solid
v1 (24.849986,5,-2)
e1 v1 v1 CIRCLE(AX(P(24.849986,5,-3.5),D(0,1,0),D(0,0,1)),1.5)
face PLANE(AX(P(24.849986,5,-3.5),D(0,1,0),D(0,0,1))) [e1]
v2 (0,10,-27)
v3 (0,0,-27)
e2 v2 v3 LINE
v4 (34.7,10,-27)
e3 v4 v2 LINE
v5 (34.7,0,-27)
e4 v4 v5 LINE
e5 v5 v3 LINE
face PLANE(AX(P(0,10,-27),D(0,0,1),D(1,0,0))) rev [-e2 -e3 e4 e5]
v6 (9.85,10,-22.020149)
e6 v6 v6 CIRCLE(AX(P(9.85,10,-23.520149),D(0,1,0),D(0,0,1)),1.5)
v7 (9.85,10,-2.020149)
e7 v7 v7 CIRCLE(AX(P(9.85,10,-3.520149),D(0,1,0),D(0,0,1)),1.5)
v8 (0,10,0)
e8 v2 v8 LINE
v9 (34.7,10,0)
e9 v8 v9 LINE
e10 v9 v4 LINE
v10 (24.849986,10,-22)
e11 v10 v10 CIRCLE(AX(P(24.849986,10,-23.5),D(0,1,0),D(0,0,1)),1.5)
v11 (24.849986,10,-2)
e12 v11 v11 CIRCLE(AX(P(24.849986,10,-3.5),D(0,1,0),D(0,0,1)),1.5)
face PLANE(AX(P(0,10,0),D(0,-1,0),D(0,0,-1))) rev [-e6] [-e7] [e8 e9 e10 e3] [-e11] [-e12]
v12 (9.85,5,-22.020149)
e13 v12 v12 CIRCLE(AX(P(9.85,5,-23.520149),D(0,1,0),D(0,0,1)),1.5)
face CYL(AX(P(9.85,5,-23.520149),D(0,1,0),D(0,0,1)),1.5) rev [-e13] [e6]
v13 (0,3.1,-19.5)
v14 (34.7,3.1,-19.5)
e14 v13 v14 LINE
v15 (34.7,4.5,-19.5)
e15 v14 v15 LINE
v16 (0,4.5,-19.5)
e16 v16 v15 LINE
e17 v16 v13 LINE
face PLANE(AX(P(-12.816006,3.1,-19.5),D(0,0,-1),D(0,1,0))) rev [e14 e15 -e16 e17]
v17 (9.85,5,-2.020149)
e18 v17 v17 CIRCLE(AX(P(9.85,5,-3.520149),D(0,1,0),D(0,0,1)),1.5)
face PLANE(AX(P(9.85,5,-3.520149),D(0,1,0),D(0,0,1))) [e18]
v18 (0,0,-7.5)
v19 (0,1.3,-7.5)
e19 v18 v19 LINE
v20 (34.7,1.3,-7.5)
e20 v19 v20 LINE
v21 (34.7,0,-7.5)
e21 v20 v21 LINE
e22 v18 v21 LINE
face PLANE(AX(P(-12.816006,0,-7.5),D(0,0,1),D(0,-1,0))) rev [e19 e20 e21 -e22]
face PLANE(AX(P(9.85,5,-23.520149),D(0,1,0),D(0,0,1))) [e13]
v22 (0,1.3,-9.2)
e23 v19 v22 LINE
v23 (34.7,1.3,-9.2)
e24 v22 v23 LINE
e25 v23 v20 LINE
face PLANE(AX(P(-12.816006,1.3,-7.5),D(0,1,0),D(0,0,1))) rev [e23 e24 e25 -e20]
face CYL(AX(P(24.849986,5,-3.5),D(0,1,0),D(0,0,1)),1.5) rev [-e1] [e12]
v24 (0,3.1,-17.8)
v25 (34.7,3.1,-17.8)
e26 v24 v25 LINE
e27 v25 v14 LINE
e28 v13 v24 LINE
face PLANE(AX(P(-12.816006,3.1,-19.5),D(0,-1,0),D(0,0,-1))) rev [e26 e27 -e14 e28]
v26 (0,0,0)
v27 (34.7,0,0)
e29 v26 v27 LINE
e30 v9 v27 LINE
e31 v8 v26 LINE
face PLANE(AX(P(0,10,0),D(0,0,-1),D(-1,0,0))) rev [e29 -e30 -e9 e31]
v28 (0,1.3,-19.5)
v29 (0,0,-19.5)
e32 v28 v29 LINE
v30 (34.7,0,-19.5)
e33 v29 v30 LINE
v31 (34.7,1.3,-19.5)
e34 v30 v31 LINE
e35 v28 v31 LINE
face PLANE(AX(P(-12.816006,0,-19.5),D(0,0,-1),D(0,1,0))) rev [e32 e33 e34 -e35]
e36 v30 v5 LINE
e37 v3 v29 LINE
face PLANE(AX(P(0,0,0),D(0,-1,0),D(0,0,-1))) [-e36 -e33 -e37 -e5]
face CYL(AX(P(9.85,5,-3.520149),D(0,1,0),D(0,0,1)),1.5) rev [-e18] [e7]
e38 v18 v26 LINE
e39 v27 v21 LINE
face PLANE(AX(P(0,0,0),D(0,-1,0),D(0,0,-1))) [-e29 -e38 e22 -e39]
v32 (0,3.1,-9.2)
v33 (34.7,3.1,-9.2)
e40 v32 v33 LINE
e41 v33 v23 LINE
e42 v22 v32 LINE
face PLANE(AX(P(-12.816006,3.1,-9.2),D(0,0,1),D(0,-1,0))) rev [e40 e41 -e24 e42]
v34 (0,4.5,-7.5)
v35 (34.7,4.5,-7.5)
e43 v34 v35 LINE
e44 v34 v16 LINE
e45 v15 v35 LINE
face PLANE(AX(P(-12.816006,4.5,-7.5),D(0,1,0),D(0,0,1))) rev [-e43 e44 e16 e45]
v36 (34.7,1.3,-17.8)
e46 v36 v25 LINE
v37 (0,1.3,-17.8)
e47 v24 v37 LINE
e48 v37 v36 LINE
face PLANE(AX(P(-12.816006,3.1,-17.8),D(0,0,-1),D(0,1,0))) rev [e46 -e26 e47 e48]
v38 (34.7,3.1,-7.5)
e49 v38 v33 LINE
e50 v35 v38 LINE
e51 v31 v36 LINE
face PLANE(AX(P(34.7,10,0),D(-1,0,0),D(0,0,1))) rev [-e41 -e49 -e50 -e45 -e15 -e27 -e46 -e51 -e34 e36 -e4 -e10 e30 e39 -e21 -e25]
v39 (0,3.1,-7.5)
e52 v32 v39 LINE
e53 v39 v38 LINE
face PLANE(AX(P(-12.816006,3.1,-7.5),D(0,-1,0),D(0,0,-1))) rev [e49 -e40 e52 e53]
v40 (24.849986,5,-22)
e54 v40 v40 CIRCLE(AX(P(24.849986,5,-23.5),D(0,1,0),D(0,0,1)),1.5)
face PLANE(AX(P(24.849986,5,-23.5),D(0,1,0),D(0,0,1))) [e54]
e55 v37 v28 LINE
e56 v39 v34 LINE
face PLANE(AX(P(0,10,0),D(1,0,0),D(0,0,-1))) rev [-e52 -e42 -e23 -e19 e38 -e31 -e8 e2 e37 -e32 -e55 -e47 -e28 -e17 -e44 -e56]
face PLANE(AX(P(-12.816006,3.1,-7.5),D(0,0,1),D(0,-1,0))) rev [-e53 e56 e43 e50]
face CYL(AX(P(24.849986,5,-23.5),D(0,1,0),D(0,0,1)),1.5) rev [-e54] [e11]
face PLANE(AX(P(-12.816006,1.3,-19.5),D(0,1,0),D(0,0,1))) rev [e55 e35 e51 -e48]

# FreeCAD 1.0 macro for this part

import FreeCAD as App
import Part
import Sketcher
from FreeCAD import Vector
Q = App.Units.Quantity

doc = App.newDocument("Part")
body = doc.addObject("PartDesign::Body", "Body")

# Sketch on XZ plane
sketch1 = body.newObject("Sketcher::SketchObject", "Sketch")
sketch1.AttachmentSupport = (doc.getObject("XZ_Plane"), [""])
sketch1.MapMode = "FlatFace"
sketch1.addGeometry([
    Part.LineSegment(Vector(0, -27, 0), Vector(0, 0, 0)),
    Part.LineSegment(Vector(0, 0, 0), Vector(34.7, 0, 0)),
    Part.LineSegment(Vector(34.7, 0, 0), Vector(34.7, -27, 0)),
    Part.LineSegment(Vector(34.7, -27, 0), Vector(0, -27, 0)),
], False)
sketch1.addConstraint([
    Sketcher.Constraint("Coincident", 0, 2, 1, 1),
    Sketcher.Constraint("Coincident", 1, 2, 2, 1),
    Sketcher.Constraint("Coincident", 2, 2, 3, 1),
    Sketcher.Constraint("Coincident", 3, 2, 0, 1),
    Sketcher.Constraint("Vertical", 0),
    Sketcher.Constraint("Horizontal", 1),
    Sketcher.Constraint("Vertical", 2),
    Sketcher.Constraint("Horizontal", 3),
    Sketcher.Constraint("Coincident", 0, 2, -1, 1),
    Sketcher.Constraint("DistanceY", 0, 1, 0, 2, Q("27 mm")),
    Sketcher.Constraint("DistanceX", 1, 1, 1, 2, Q("34.7 mm")),
])
pad1 = body.newObject("PartDesign::Pad", "Pad")
pad1.Profile = sketch1
pad1.Length = 10
pad1.Reversed = True

# Sketch on XZ plane
sketch2 = body.newObject("Sketcher::SketchObject", "Sketch001")
sketch2.AttachmentSupport = (doc.getObject("XZ_Plane"), [""])
sketch2.MapMode = "FlatFace"
sketch2.AttachmentOffset = App.Placement(Vector(0, 0, -10), App.Rotation())
sketch2.addGeometry([
    Part.Circle(Vector(9.85, -23.520149, 0), Vector(0, 0, 1), 1.5),
    Part.Circle(Vector(24.849986, -23.5, 0), Vector(0, 0, 1), 1.5),
    Part.Circle(Vector(9.85, -3.520149, 0), Vector(0, 0, 1), 1.5),
    Part.Circle(Vector(24.849986, -3.5, 0), Vector(0, 0, 1), 1.5),
], False)
sketch2.addConstraint([
    Sketcher.Constraint("Equal", 0, 1),
    Sketcher.Constraint("Equal", 1, 2),
    Sketcher.Constraint("Equal", 2, 3),
    Sketcher.Constraint("Vertical", 0, 3, 2, 3),
    Sketcher.Constraint("Vertical", 1, 3, 3, 3),
    Sketcher.Constraint("Diameter", 0, Q("3 mm")),
    Sketcher.Constraint("DistanceY", 0, 3, 2, 3, Q("20 mm")),
    Sketcher.Constraint("DistanceY", 1, 3, 3, 3, Q("20 mm")),
    Sketcher.Constraint("DistanceY", 1, 3, -1, 1, Q("23.5 mm")),
    Sketcher.Constraint("DistanceX", -1, 1, 0, 3, Q("9.85 mm")),
    Sketcher.Constraint("DistanceY", 0, 3, -1, 1, Q("23.520149 mm")),
    Sketcher.Constraint("DistanceX", -1, 1, 1, 3, Q("24.849986 mm")),
])
pocket1 = body.newObject("PartDesign::Pocket", "Pocket")
pocket1.Profile = sketch2
pocket1.Length = 5
pocket1.Reversed = True

# Sketch on YZ plane
sketch3 = body.newObject("Sketcher::SketchObject", "Sketch002")
sketch3.AttachmentSupport = (doc.getObject("YZ_Plane"), [""])
sketch3.MapMode = "FlatFace"
sketch3.AttachmentOffset = App.Placement(Vector(0, 0, 34.7), App.Rotation())
sketch3.addGeometry([
    Part.LineSegment(Vector(0, -7.5, 0), Vector(0, -19.5, 0)),  # 0
    Part.LineSegment(Vector(0, -19.5, 0), Vector(1.3, -19.5, 0)),  # 1
    Part.LineSegment(Vector(1.3, -19.5, 0), Vector(1.3, -17.8, 0)),  # 2
    Part.LineSegment(Vector(1.3, -17.8, 0), Vector(3.1, -17.8, 0)),  # 3
    Part.LineSegment(Vector(3.1, -17.8, 0), Vector(3.1, -19.5, 0)),  # 4
    Part.LineSegment(Vector(3.1, -19.5, 0), Vector(4.5, -19.5, 0)),  # 5
    Part.LineSegment(Vector(4.5, -19.5, 0), Vector(4.5, -7.5, 0)),  # 6
    Part.LineSegment(Vector(4.5, -7.5, 0), Vector(3.1, -7.5, 0)),  # 7
    Part.LineSegment(Vector(3.1, -7.5, 0), Vector(3.1, -9.2, 0)),  # 8
    Part.LineSegment(Vector(3.1, -9.2, 0), Vector(1.3, -9.2, 0)),  # 9
    Part.LineSegment(Vector(1.3, -9.2, 0), Vector(1.3, -7.5, 0)),  # 10
    Part.LineSegment(Vector(1.3, -7.5, 0), Vector(0, -7.5, 0)),  # 11
], False)
sketch3.addConstraint([
    Sketcher.Constraint("Coincident", 0, 2, 1, 1),
    Sketcher.Constraint("Coincident", 1, 2, 2, 1),
    Sketcher.Constraint("Coincident", 2, 2, 3, 1),
    Sketcher.Constraint("Coincident", 3, 2, 4, 1),
    Sketcher.Constraint("Coincident", 4, 2, 5, 1),
    Sketcher.Constraint("Coincident", 5, 2, 6, 1),
    Sketcher.Constraint("Coincident", 6, 2, 7, 1),
    Sketcher.Constraint("Coincident", 7, 2, 8, 1),
    Sketcher.Constraint("Coincident", 8, 2, 9, 1),
    Sketcher.Constraint("Coincident", 9, 2, 10, 1),
    Sketcher.Constraint("Coincident", 10, 2, 11, 1),
    Sketcher.Constraint("Coincident", 11, 2, 0, 1),
    Sketcher.Constraint("Vertical", 0),
    Sketcher.Constraint("Horizontal", 1),
    Sketcher.Constraint("Vertical", 2),
    Sketcher.Constraint("Horizontal", 3),
    Sketcher.Constraint("Vertical", 4),
    Sketcher.Constraint("Horizontal", 5),
    Sketcher.Constraint("Vertical", 6),
    Sketcher.Constraint("Horizontal", 7),
    Sketcher.Constraint("Vertical", 8),
    Sketcher.Constraint("Horizontal", 9),
    Sketcher.Constraint("Vertical", 10),
    Sketcher.Constraint("Horizontal", 11),
    Sketcher.Constraint("PointOnObject", 0, 2, -2),
    Sketcher.Constraint("Horizontal", 1, 2, 4, 2),
    Sketcher.Constraint("Horizontal", 7, 2, 10, 2),
    Sketcher.Constraint("Vertical", 4, 2, 7, 2),
    Sketcher.Constraint("Vertical", 2, 2, 9, 2),
    Sketcher.Constraint("Equal", 4, 8),
    Sketcher.Constraint("DistanceY", 0, 2, 0, 1, Q("12 mm")),
    Sketcher.Constraint("DistanceX", 1, 1, 1, 2, Q("1.3 mm")),
    Sketcher.Constraint("DistanceX", 3, 1, 3, 2, Q("1.8 mm")),
    Sketcher.Constraint("DistanceX", 5, 1, 5, 2, Q("1.4 mm")),
    Sketcher.Constraint("DistanceY", 2, 1, 2, 2, Q("1.7 mm")),
    Sketcher.Constraint("DistanceY", 0, 2, -1, 1, Q("19.5 mm")),
])
pocket2 = body.newObject("PartDesign::Pocket", "Pocket001")
pocket2.Profile = sketch3
pocket2.Length = 34.7

doc.recompute()
